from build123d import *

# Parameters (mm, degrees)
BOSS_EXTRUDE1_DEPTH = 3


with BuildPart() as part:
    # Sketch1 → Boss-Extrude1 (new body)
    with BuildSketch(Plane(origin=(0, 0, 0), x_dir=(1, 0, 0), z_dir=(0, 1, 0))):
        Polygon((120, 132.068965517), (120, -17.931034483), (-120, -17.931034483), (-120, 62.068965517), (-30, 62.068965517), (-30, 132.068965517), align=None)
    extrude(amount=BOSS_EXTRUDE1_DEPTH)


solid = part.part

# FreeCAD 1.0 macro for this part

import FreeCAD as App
import Part
import Sketcher

V = App.Vector

doc = App.newDocument("Part")
body = doc.addObject("PartDesign::Body", "Body")

sketch1 = body.newObject("Sketcher::SketchObject", "Sketch")
sketch1.AttachmentSupport = (doc.getObject("XZ_Plane"), [""])
sketch1.MapMode = "FlatFace"
sketch1.addGeometry([
    Part.LineSegment(V(120, 17.931034, 0), V(120, -132.068966, 0)),
    Part.LineSegment(V(120, -132.068966, 0), V(-30, -132.068966, 0)),
    Part.LineSegment(V(-30, -132.068966, 0), V(-30, -62.068966, 0)),
    Part.LineSegment(V(-30, -62.068966, 0), V(-120, -62.068966, 0)),
    Part.LineSegment(V(-120, -62.068966, 0), V(-120, 17.931034, 0)),
    Part.LineSegment(V(-120, 17.931034, 0), V(120, 17.931034, 0)),
], False)
sketch1.addConstraint([
    Sketcher.Constraint("Coincident", 0, 2, 1, 1),
    Sketcher.Constraint("Coincident", 1, 2, 2, 1),
    Sketcher.Constraint("Coincident", 2, 2, 3, 1),
    Sketcher.Constraint("Coincident", 3, 2, 4, 1),
    Sketcher.Constraint("Coincident", 4, 2, 5, 1),
    Sketcher.Constraint("Coincident", 5, 2, 0, 1),
    Sketcher.Constraint("Vertical", 0),
    Sketcher.Constraint("Horizontal", 1),
    Sketcher.Constraint("Vertical", 2),
    Sketcher.Constraint("Horizontal", 3),
    Sketcher.Constraint("Vertical", 4),
    Sketcher.Constraint("Horizontal", 5),
    Sketcher.Constraint("Equal", 1, 0),
    Sketcher.Constraint("DistanceX", 1, 2, 1, 1, 150.0),
    Sketcher.Constraint("DistanceX", 3, 2, 3, 1, 90.0),
    Sketcher.Constraint("DistanceY", 2, 1, 2, 2, 70.0),
    Sketcher.Constraint("DistanceX", -1, 1, 0, 2, 120.0),
    Sketcher.Constraint("DistanceY", 0, 2, -1, 1, 132.068966),
])
pad1 = body.newObject("PartDesign::Pad", "Pad")
pad1.Profile = sketch1
pad1.Length = 3
pad1.Reversed = True

doc.recompute()
